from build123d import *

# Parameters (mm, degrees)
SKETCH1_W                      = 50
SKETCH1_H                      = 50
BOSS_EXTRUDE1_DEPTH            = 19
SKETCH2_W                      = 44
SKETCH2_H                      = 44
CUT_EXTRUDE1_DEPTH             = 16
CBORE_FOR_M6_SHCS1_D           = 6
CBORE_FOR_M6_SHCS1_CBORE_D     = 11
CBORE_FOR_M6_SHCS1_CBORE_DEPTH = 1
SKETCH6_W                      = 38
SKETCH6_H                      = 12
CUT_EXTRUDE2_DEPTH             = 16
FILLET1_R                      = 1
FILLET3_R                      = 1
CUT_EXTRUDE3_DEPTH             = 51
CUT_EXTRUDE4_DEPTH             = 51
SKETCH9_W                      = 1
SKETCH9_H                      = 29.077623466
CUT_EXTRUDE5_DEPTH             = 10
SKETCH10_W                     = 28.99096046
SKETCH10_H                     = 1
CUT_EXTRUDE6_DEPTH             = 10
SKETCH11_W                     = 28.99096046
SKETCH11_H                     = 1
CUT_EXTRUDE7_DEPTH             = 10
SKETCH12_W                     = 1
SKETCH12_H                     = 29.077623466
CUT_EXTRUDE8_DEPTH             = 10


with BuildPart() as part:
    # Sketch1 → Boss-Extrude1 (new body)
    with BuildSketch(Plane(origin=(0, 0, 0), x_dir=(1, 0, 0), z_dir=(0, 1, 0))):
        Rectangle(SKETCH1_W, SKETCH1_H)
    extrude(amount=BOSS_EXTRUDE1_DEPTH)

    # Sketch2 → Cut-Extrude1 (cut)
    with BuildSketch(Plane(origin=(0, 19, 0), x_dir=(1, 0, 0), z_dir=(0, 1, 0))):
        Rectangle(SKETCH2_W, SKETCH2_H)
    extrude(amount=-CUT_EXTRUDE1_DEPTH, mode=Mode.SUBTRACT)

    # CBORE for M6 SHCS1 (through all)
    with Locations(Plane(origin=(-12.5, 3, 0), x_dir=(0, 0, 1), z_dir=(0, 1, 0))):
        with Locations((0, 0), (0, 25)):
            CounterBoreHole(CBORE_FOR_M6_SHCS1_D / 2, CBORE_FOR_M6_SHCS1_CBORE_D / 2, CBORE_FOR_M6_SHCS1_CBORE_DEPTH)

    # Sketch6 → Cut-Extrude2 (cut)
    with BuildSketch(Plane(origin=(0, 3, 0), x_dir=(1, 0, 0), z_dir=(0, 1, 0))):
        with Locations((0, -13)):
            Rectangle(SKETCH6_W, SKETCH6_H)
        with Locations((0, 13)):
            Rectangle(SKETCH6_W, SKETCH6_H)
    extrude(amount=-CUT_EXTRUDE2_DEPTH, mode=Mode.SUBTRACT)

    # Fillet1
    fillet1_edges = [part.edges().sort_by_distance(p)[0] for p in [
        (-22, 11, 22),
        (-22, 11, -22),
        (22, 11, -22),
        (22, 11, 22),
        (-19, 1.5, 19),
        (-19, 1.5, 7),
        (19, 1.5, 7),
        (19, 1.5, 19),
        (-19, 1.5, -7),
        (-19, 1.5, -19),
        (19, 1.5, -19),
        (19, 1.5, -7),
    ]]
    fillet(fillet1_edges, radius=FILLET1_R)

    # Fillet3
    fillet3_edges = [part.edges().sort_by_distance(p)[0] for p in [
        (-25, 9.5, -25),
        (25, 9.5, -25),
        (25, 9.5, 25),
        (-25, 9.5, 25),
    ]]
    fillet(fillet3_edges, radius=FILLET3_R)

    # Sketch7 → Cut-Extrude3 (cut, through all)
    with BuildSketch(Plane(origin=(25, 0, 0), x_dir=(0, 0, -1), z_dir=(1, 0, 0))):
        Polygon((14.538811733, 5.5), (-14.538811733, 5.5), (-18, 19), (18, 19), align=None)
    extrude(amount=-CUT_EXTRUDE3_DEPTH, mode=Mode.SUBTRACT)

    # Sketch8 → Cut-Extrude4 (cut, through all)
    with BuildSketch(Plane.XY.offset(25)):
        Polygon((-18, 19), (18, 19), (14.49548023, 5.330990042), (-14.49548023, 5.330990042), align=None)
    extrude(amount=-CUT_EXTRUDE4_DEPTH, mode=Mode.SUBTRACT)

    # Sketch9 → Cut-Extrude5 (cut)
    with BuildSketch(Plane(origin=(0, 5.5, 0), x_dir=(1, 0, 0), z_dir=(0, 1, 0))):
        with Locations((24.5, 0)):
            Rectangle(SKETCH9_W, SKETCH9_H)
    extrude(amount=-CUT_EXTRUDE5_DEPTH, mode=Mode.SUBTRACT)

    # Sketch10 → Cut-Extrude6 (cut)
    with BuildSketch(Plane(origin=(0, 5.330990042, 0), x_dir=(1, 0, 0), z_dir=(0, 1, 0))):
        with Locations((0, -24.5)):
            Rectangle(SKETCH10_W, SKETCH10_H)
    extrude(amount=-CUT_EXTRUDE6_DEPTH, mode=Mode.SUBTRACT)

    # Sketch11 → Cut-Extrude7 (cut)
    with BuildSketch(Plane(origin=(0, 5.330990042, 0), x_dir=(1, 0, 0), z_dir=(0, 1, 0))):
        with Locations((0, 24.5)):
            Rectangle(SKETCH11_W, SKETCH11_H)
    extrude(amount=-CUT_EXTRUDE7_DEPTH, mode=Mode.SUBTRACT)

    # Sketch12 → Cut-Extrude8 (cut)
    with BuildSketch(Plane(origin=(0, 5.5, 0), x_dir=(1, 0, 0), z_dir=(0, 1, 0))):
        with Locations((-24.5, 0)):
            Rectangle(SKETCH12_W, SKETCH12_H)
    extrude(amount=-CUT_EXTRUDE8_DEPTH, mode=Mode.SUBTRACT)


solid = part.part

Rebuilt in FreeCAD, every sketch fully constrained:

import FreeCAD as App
import Part
import Sketcher
Q = App.Units.Quantity


def edges_at(feature, points):
    """Names of the edges that pass closest to the given points."""
    edges = feature.Shape.Edges
    near = lambda p: min(range(len(edges)), key=lambda i: edges[i].distToShape(Part.Vertex(*p))[0])
    return sorted({f"Edge{near(p) + 1}" for p in points})

doc = App.newDocument("Part")
params = doc.addObject("Spreadsheet::Sheet", "Params")
for row, (alias, value) in enumerate([
    ("sketch1_width", "50 mm"),
    ("pad1_length", "19 mm"),
    ("sketch2_width", "44 mm"),
    ("pocket1_length", "16 mm"),
    ("sketch3_diameter", "6 mm"),
    ("hole_diameter", "6 mm"),
    ("hole_cbore_diameter", "11 mm"),
    ("hole_cbore_depth", "1 mm"),
    ("sketch4_width", "38 mm"),
    ("sketch4_height", "12 mm"),
    ("pocket2_length", "16 mm"),
    ("fillet_radius", "1 mm"),
    ("fillet2_radius", "1 mm"),
    ("sketch5_height", "36 mm"),
    ("sketch6_width", "36 mm"),
    ("sketch7_width", "1 mm"),
    ("pocket5_length", "10 mm"),
    ("sketch8_height", "1 mm"),
    ("pocket6_length", "10 mm"),
    ("sketch9_height", "1 mm"),
    ("pocket7_length", "10 mm"),
    ("sketch10_width", "1 mm"),
    ("pocket8_length", "10 mm"),
], start=1):
    params.set(f"A{row}", alias)
    params.set(f"B{row}", "=" + value)
    params.setAlias(f"B{row}", alias)

body = doc.addObject("PartDesign::Body", "Body")

sketch1 = body.newObject("Sketcher::SketchObject", "Sketch")
sketch1.AttachmentSupport = (doc.getObject("XZ_Plane"), [""])
sketch1.MapMode = "FlatFace"
sketch1.addGeometry(Part.LineSegment(App.Vector(-25, -25, 0), App.Vector(-25, 25, 0)), False)
sketch1.addGeometry(Part.LineSegment(App.Vector(-25, 25, 0), App.Vector(25, 25, 0)), False)
sketch1.addGeometry(Part.LineSegment(App.Vector(25, 25, 0), App.Vector(25, -25, 0)), False)
sketch1.addGeometry(Part.LineSegment(App.Vector(25, -25, 0), App.Vector(-25, -25, 0)), False)
sketch1.addConstraint(Sketcher.Constraint("Coincident", 0, 2, 1, 1))
sketch1.addConstraint(Sketcher.Constraint("Coincident", 1, 2, 2, 1))
sketch1.addConstraint(Sketcher.Constraint("Coincident", 2, 2, 3, 1))
sketch1.addConstraint(Sketcher.Constraint("Coincident", 3, 2, 0, 1))
sketch1.addConstraint(Sketcher.Constraint("Vertical", 0))
sketch1.addConstraint(Sketcher.Constraint("Horizontal", 1))
sketch1.addConstraint(Sketcher.Constraint("Vertical", 2))
sketch1.addConstraint(Sketcher.Constraint("Horizontal", 3))
sketch1.addConstraint(Sketcher.Constraint("Symmetric", 0, 2, 2, 2, -1, 1))
sketch1.addConstraint(Sketcher.Constraint("Equal", 3, 0))
sketch1.addConstraint(Sketcher.Constraint("DistanceX", 1, 1, 1, 2, Q("50 mm")))
sketch1.setExpression("Constraints[10]", "Params.sketch1_width")
pad1 = body.newObject("PartDesign::Pad", "Pad")
pad1.Profile = sketch1
pad1.setExpression("Length", "Params.pad1_length")
pad1.Reversed = True

sketch2 = body.newObject("Sketcher::SketchObject", "Sketch001")
sketch2.AttachmentSupport = (doc.getObject("XZ_Plane"), [""])
sketch2.MapMode = "FlatFace"
sketch2.AttachmentOffset = App.Placement(App.Vector(0, 0, -19), App.Rotation())
sketch2.addGeometry(Part.LineSegment(App.Vector(-22, -22, 0), App.Vector(-22, 22, 0)), False)
sketch2.addGeometry(Part.LineSegment(App.Vector(-22, 22, 0), App.Vector(22, 22, 0)), False)
sketch2.addGeometry(Part.LineSegment(App.Vector(22, 22, 0), App.Vector(22, -22, 0)), False)
sketch2.addGeometry(Part.LineSegment(App.Vector(22, -22, 0), App.Vector(-22, -22, 0)), False)
sketch2.addConstraint(Sketcher.Constraint("Coincident", 0, 2, 1, 1))
sketch2.addConstraint(Sketcher.Constraint("Coincident", 1, 2, 2, 1))
sketch2.addConstraint(Sketcher.Constraint("Coincident", 2, 2, 3, 1))
sketch2.addConstraint(Sketcher.Constraint("Coincident", 3, 2, 0, 1))
sketch2.addConstraint(Sketcher.Constraint("Vertical", 0))
sketch2.addConstraint(Sketcher.Constraint("Horizontal", 1))
sketch2.addConstraint(Sketcher.Constraint("Vertical", 2))
sketch2.addConstraint(Sketcher.Constraint("Horizontal", 3))
sketch2.addConstraint(Sketcher.Constraint("Symmetric", 0, 2, 2, 2, -1, 1))
sketch2.addConstraint(Sketcher.Constraint("Equal", 3, 0))
sketch2.addConstraint(Sketcher.Constraint("DistanceX", 1, 1, 1, 2, Q("44 mm")))
sketch2.setExpression("Constraints[10]", "Params.sketch2_width")
pocket1 = body.newObject("PartDesign::Pocket", "Pocket")
pocket1.Profile = sketch2
pocket1.setExpression("Length", "Params.pocket1_length")
pocket1.Reversed = True

sketch3 = body.newObject("Sketcher::SketchObject", "Sketch002")
sketch3.AttachmentSupport = (doc.getObject("XZ_Plane"), [""])
sketch3.MapMode = "FlatFace"
sketch3.AttachmentOffset = App.Placement(App.Vector(0, 0, -3), App.Rotation())
sketch3.addGeometry(Part.Circle(App.Vector(-12.5, 0, 0), App.Vector(0, 0, 1), 3), False)
sketch3.addGeometry(Part.Circle(App.Vector(12.5, 0, 0), App.Vector(0, 0, 1), 3), False)
sketch3.addConstraint(Sketcher.Constraint("Equal", 0, 1))
sketch3.addConstraint(Sketcher.Constraint("Symmetric", 0, 3, 1, 3, -1, 1))
sketch3.addConstraint(Sketcher.Constraint("PointOnObject", 0, 3, -1))
sketch3.addConstraint(Sketcher.Constraint("Diameter", 0, Q("6 mm")))
sketch3.addConstraint(Sketcher.Constraint("DistanceX", 0, 3, 1, 3, Q("25 mm")))
sketch3.setExpression("Constraints[3]", "Params.sketch3_diameter")
doc.recompute()
hole = body.newObject("PartDesign::Hole", "Hole")
hole.Profile = sketch3
hole.ThreadType = "None"
hole.setExpression("Diameter", "Params.hole_diameter")
hole.DepthType = "ThroughAll"
hole.HoleCutType = "Counterbore"
hole.setExpression("HoleCutDiameter", "Params.hole_cbore_diameter")
hole.setExpression("HoleCutDepth", "Params.hole_cbore_depth")
hole.Reversed = True

sketch4 = body.newObject("Sketcher::SketchObject", "Sketch003")
sketch4.AttachmentSupport = (doc.getObject("XZ_Plane"), [""])
sketch4.MapMode = "FlatFace"
sketch4.AttachmentOffset = App.Placement(App.Vector(0, 0, -3), App.Rotation())
sketch4.addGeometry(Part.LineSegment(App.Vector(-19, 7, 0), App.Vector(-19, 19, 0)), False)
sketch4.addGeometry(Part.LineSegment(App.Vector(-19, 19, 0), App.Vector(19, 19, 0)), False)
sketch4.addGeometry(Part.LineSegment(App.Vector(19, 19, 0), App.Vector(19, 7, 0)), False)
sketch4.addGeometry(Part.LineSegment(App.Vector(19, 7, 0), App.Vector(-19, 7, 0)), False)
sketch4.addGeometry(Part.LineSegment(App.Vector(-19, -19, 0), App.Vector(-19, -7, 0)), False)
sketch4.addGeometry(Part.LineSegment(App.Vector(-19, -7, 0), App.Vector(19, -7, 0)), False)
sketch4.addGeometry(Part.LineSegment(App.Vector(19, -7, 0), App.Vector(19, -19, 0)), False)
sketch4.addGeometry(Part.LineSegment(App.Vector(19, -19, 0), App.Vector(-19, -19, 0)), False)
sketch4.addConstraint(Sketcher.Constraint("Coincident", 0, 2, 1, 1))
sketch4.addConstraint(Sketcher.Constraint("Coincident", 1, 2, 2, 1))
sketch4.addConstraint(Sketcher.Constraint("Coincident", 2, 2, 3, 1))
sketch4.addConstraint(Sketcher.Constraint("Coincident", 3, 2, 0, 1))
sketch4.addConstraint(Sketcher.Constraint("Coincident", 4, 2, 5, 1))
sketch4.addConstraint(Sketcher.Constraint("Coincident", 5, 2, 6, 1))
sketch4.addConstraint(Sketcher.Constraint("Coincident", 6, 2, 7, 1))
sketch4.addConstraint(Sketcher.Constraint("Coincident", 7, 2, 4, 1))
sketch4.addConstraint(Sketcher.Constraint("Vertical", 0))
sketch4.addConstraint(Sketcher.Constraint("Horizontal", 1))
sketch4.addConstraint(Sketcher.Constraint("Vertical", 2))
sketch4.addConstraint(Sketcher.Constraint("Horizontal", 3))
sketch4.addConstraint(Sketcher.Constraint("Vertical", 4))
sketch4.addConstraint(Sketcher.Constraint("Horizontal", 5))
sketch4.addConstraint(Sketcher.Constraint("Vertical", 6))
sketch4.addConstraint(Sketcher.Constraint("Horizontal", 7))
sketch4.addConstraint(Sketcher.Constraint("Symmetric", 2, 2, 4, 2, -1, 1))
sketch4.addConstraint(Sketcher.Constraint("Symmetric", 0, 2, 6, 2, -1, 1))
sketch4.addConstraint(Sketcher.Constraint("Vertical", 3, 2, 4, 2))
sketch4.addConstraint(Sketcher.Constraint("DistanceX", 1, 1, 1, 2, Q("38 mm")))
sketch4.addConstraint(Sketcher.Constraint("DistanceY", 0, 1, 0, 2, Q("12 mm")))
sketch4.addConstraint(Sketcher.Constraint("DistanceY", -1, 1, 0, 2, Q("19 mm")))
sketch4.setExpression("Constraints[19]", "Params.sketch4_width")
sketch4.setExpression("Constraints[20]", "Params.sketch4_height")
pocket2 = body.newObject("PartDesign::Pocket", "Pocket001")
pocket2.Profile = sketch4
pocket2.setExpression("Length", "Params.pocket2_length")
pocket2.Reversed = True
doc.recompute()

fillet = body.newObject("PartDesign::Fillet", "Fillet")
fillet.Base = (pocket2, edges_at(pocket2, [
    (-22, 11, 22),
    (-22, 11, -22),
    (22, 11, -22),
    (22, 11, 22),
    (-19, 1.5, 19),
    (-19, 1.5, 7),
    (19, 1.5, 7),
    (19, 1.5, 19),
    (-19, 1.5, -7),
    (-19, 1.5, -19),
    (19, 1.5, -19),
    (19, 1.5, -7),
]))
fillet.setExpression("Radius", "Params.fillet_radius")
doc.recompute()

fillet2 = body.newObject("PartDesign::Fillet", "Fillet001")
fillet2.Base = (fillet, edges_at(fillet, [
    (-25, 9.5, -25),
    (25, 9.5, -25),
    (25, 9.5, 25),
    (-25, 9.5, 25),
]))
fillet2.setExpression("Radius", "Params.fillet2_radius")

sketch5 = body.newObject("Sketcher::SketchObject", "Sketch004")
sketch5.AttachmentSupport = (doc.getObject("YZ_Plane"), [""])
sketch5.MapMode = "FlatFace"
sketch5.AttachmentOffset = App.Placement(App.Vector(0, 0, 25), App.Rotation())
sketch5.addGeometry(Part.LineSegment(App.Vector(5.5, 14.538812, 0), App.Vector(5.5, -14.538812, 0)), False)
sketch5.addGeometry(Part.LineSegment(App.Vector(5.5, -14.538812, 0), App.Vector(19, -18, 0)), False)
sketch5.addGeometry(Part.LineSegment(App.Vector(19, -18, 0), App.Vector(19, 18, 0)), False)
sketch5.addGeometry(Part.LineSegment(App.Vector(19, 18, 0), App.Vector(5.5, 14.538812, 0)), False)
sketch5.addConstraint(Sketcher.Constraint("Coincident", 0, 2, 1, 1))
sketch5.addConstraint(Sketcher.Constraint("Coincident", 1, 2, 2, 1))
sketch5.addConstraint(Sketcher.Constraint("Coincident", 2, 2, 3, 1))
sketch5.addConstraint(Sketcher.Constraint("Coincident", 3, 2, 0, 1))
sketch5.addConstraint(Sketcher.Constraint("Vertical", 0))
sketch5.addConstraint(Sketcher.Constraint("Vertical", 2))
sketch5.addConstraint(Sketcher.Constraint("Equal", 1, 3))
sketch5.addConstraint(Sketcher.Constraint("DistanceY", 2, 1, 2, 2, Q("36 mm")))
sketch5.addConstraint(Sketcher.Constraint("DistanceX", -1, 1, 1, 2, Q("19 mm")))
sketch5.addConstraint(Sketcher.Constraint("DistanceY", 1, 2, -1, 1, Q("18 mm")))
sketch5.addConstraint(Sketcher.Constraint("DistanceX", -1, 1, 0, 2, Q("5.5 mm")))
sketch5.addConstraint(Sketcher.Constraint("Angle", 1, Q("-14.38 deg")))
sketch5.setExpression("Constraints[7]", "Params.sketch5_height")
pocket3 = body.newObject("PartDesign::Pocket", "Pocket002")
pocket3.Profile = sketch5
pocket3.Type = "ThroughAll"

sketch6 = body.newObject("Sketcher::SketchObject", "Sketch005")
sketch6.AttachmentSupport = (doc.getObject("XY_Plane"), [""])
sketch6.MapMode = "FlatFace"
sketch6.AttachmentOffset = App.Placement(App.Vector(0, 0, 25), App.Rotation())
sketch6.addGeometry(Part.LineSegment(App.Vector(18, 19, 0), App.Vector(-18, 19, 0)), False)
sketch6.addGeometry(Part.LineSegment(App.Vector(-18, 19, 0), App.Vector(-14.49548, 5.33099, 0)), False)
sketch6.addGeometry(Part.LineSegment(App.Vector(-14.49548, 5.33099, 0), App.Vector(14.49548, 5.33099, 0)), False)
sketch6.addGeometry(Part.LineSegment(App.Vector(14.49548, 5.33099, 0), App.Vector(18, 19, 0)), False)
sketch6.addConstraint(Sketcher.Constraint("Coincident", 0, 2, 1, 1))
sketch6.addConstraint(Sketcher.Constraint("Coincident", 1, 2, 2, 1))
sketch6.addConstraint(Sketcher.Constraint("Coincident", 2, 2, 3, 1))
sketch6.addConstraint(Sketcher.Constraint("Coincident", 3, 2, 0, 1))
sketch6.addConstraint(Sketcher.Constraint("Horizontal", 0))
sketch6.addConstraint(Sketcher.Constraint("Horizontal", 2))
sketch6.addConstraint(Sketcher.Constraint("Equal", 1, 3))
sketch6.addConstraint(Sketcher.Constraint("DistanceX", 0, 2, 0, 1, Q("36 mm")))
sketch6.addConstraint(Sketcher.Constraint("DistanceX", 0, 2, -1, 1, Q("18 mm")))
sketch6.addConstraint(Sketcher.Constraint("DistanceY", -1, 1, 0, 2, Q("19 mm")))
sketch6.addConstraint(Sketcher.Constraint("Angle", 1, Q("-75.62 deg")))
sketch6.addConstraint(Sketcher.Constraint("DistanceX", 2, 1, 2, 2, Q("28.99096 mm")))
sketch6.setExpression("Constraints[7]", "Params.sketch6_width")
pocket4 = body.newObject("PartDesign::Pocket", "Pocket003")
pocket4.Profile = sketch6
pocket4.Type = "ThroughAll"

sketch7 = body.newObject("Sketcher::SketchObject", "Sketch006")
sketch7.AttachmentSupport = (doc.getObject("XZ_Plane"), [""])
sketch7.MapMode = "FlatFace"
sketch7.AttachmentOffset = App.Placement(App.Vector(0, 0, -5.5), App.Rotation())
sketch7.addGeometry(Part.LineSegment(App.Vector(24, -14.538812, 0), App.Vector(24, 14.538812, 0)), False)
sketch7.addGeometry(Part.LineSegment(App.Vector(24, 14.538812, 0), App.Vector(25, 14.538812, 0)), False)
sketch7.addGeometry(Part.LineSegment(App.Vector(25, 14.538812, 0), App.Vector(25, -14.538812, 0)), False)
sketch7.addGeometry(Part.LineSegment(App.Vector(25, -14.538812, 0), App.Vector(24, -14.538812, 0)), False)
sketch7.addConstraint(Sketcher.Constraint("Coincident", 0, 2, 1, 1))
sketch7.addConstraint(Sketcher.Constraint("Coincident", 1, 2, 2, 1))
sketch7.addConstraint(Sketcher.Constraint("Coincident", 2, 2, 3, 1))
sketch7.addConstraint(Sketcher.Constraint("Coincident", 3, 2, 0, 1))
sketch7.addConstraint(Sketcher.Constraint("Vertical", 0))
sketch7.addConstraint(Sketcher.Constraint("Horizontal", 1))
sketch7.addConstraint(Sketcher.Constraint("Vertical", 2))
sketch7.addConstraint(Sketcher.Constraint("Horizontal", 3))
sketch7.addConstraint(Sketcher.Constraint("DistanceX", 1, 1, 1, 2, Q("1 mm")))
sketch7.addConstraint(Sketcher.Constraint("DistanceX", -1, 1, 0, 2, Q("24 mm")))
sketch7.addConstraint(Sketcher.Constraint("DistanceY", 0, 1, 0, 2, Q("29.077623 mm")))
sketch7.addConstraint(Sketcher.Constraint("DistanceY", -1, 1, 0, 2, Q("14.538812 mm")))
sketch7.setExpression("Constraints[8]", "Params.sketch7_width")
pocket5 = body.newObject("PartDesign::Pocket", "Pocket004")
pocket5.Profile = sketch7
pocket5.setExpression("Length", "Params.pocket5_length")
pocket5.Reversed = True

sketch8 = body.newObject("Sketcher::SketchObject", "Sketch007")
sketch8.AttachmentSupport = (doc.getObject("XZ_Plane"), [""])
sketch8.MapMode = "FlatFace"
sketch8.AttachmentOffset = App.Placement(App.Vector(0, 0, -5.33099), App.Rotation())
sketch8.addGeometry(Part.LineSegment(App.Vector(-14.49548, 24, 0), App.Vector(-14.49548, 25, 0)), False)
sketch8.addGeometry(Part.LineSegment(App.Vector(-14.49548, 25, 0), App.Vector(14.49548, 25, 0)), False)
sketch8.addGeometry(Part.LineSegment(App.Vector(14.49548, 25, 0), App.Vector(14.49548, 24, 0)), False)
sketch8.addGeometry(Part.LineSegment(App.Vector(14.49548, 24, 0), App.Vector(-14.49548, 24, 0)), False)
sketch8.addConstraint(Sketcher.Constraint("Coincident", 0, 2, 1, 1))
sketch8.addConstraint(Sketcher.Constraint("Coincident", 1, 2, 2, 1))
sketch8.addConstraint(Sketcher.Constraint("Coincident", 2, 2, 3, 1))
sketch8.addConstraint(Sketcher.Constraint("Coincident", 3, 2, 0, 1))
sketch8.addConstraint(Sketcher.Constraint("Vertical", 0))
sketch8.addConstraint(Sketcher.Constraint("Horizontal", 1))
sketch8.addConstraint(Sketcher.Constraint("Vertical", 2))
sketch8.addConstraint(Sketcher.Constraint("Horizontal", 3))
sketch8.addConstraint(Sketcher.Constraint("DistanceY", 0, 1, 0, 2, Q("1 mm")))
sketch8.addConstraint(Sketcher.Constraint("DistanceY", -1, 1, 0, 2, Q("25 mm")))
sketch8.addConstraint(Sketcher.Constraint("DistanceX", 1, 1, 1, 2, Q("28.99096 mm")))
sketch8.addConstraint(Sketcher.Constraint("DistanceX", 0, 2, -1, 1, Q("14.49548 mm")))
sketch8.setExpression("Constraints[8]", "Params.sketch8_height")
pocket6 = body.newObject("PartDesign::Pocket", "Pocket005")
pocket6.Profile = sketch8
pocket6.setExpression("Length", "Params.pocket6_length")
pocket6.Reversed = True

sketch9 = body.newObject("Sketcher::SketchObject", "Sketch008")
sketch9.AttachmentSupport = (doc.getObject("XZ_Plane"), [""])
sketch9.MapMode = "FlatFace"
sketch9.AttachmentOffset = App.Placement(App.Vector(0, 0, -5.33099), App.Rotation())
sketch9.addGeometry(Part.LineSegment(App.Vector(-14.49548, -25, 0), App.Vector(-14.49548, -24, 0)), False)
sketch9.addGeometry(Part.LineSegment(App.Vector(-14.49548, -24, 0), App.Vector(14.49548, -24, 0)), False)
sketch9.addGeometry(Part.LineSegment(App.Vector(14.49548, -24, 0), App.Vector(14.49548, -25, 0)), False)
sketch9.addGeometry(Part.LineSegment(App.Vector(14.49548, -25, 0), App.Vector(-14.49548, -25, 0)), False)
sketch9.addConstraint(Sketcher.Constraint("Coincident", 0, 2, 1, 1))
sketch9.addConstraint(Sketcher.Constraint("Coincident", 1, 2, 2, 1))
sketch9.addConstraint(Sketcher.Constraint("Coincident", 2, 2, 3, 1))
sketch9.addConstraint(Sketcher.Constraint("Coincident", 3, 2, 0, 1))
sketch9.addConstraint(Sketcher.Constraint("Vertical", 0))
sketch9.addConstraint(Sketcher.Constraint("Horizontal", 1))
sketch9.addConstraint(Sketcher.Constraint("Vertical", 2))
sketch9.addConstraint(Sketcher.Constraint("Horizontal", 3))
sketch9.addConstraint(Sketcher.Constraint("DistanceY", 0, 1, 0, 2, Q("1 mm")))
sketch9.addConstraint(Sketcher.Constraint("DistanceY", 0, 2, -1, 1, Q("24 mm")))
sketch9.addConstraint(Sketcher.Constraint("DistanceX", 1, 1, 1, 2, Q("28.99096 mm")))
sketch9.addConstraint(Sketcher.Constraint("DistanceX", 0, 2, -1, 1, Q("14.49548 mm")))
sketch9.setExpression("Constraints[8]", "Params.sketch9_height")
pocket7 = body.newObject("PartDesign::Pocket", "Pocket006")
pocket7.Profile = sketch9
pocket7.setExpression("Length", "Params.pocket7_length")
pocket7.Reversed = True

sketch10 = body.newObject("Sketcher::SketchObject", "Sketch009")
sketch10.AttachmentSupport = (doc.getObject("XZ_Plane"), [""])
sketch10.MapMode = "FlatFace"
sketch10.AttachmentOffset = App.Placement(App.Vector(0, 0, -5.5), App.Rotation())
sketch10.addGeometry(Part.LineSegment(App.Vector(-25, -14.538812, 0), App.Vector(-25, 14.538812, 0)), False)
sketch10.addGeometry(Part.LineSegment(App.Vector(-25, 14.538812, 0), App.Vector(-24, 14.538812, 0)), False)
sketch10.addGeometry(Part.LineSegment(App.Vector(-24, 14.538812, 0), App.Vector(-24, -14.538812, 0)), False)
sketch10.addGeometry(Part.LineSegment(App.Vector(-24, -14.538812, 0), App.Vector(-25, -14.538812, 0)), False)
sketch10.addConstraint(Sketcher.Constraint("Coincident", 0, 2, 1, 1))
sketch10.addConstraint(Sketcher.Constraint("Coincident", 1, 2, 2, 1))
sketch10.addConstraint(Sketcher.Constraint("Coincident", 2, 2, 3, 1))
sketch10.addConstraint(Sketcher.Constraint("Coincident", 3, 2, 0, 1))
sketch10.addConstraint(Sketcher.Constraint("Vertical", 0))
sketch10.addConstraint(Sketcher.Constraint("Horizontal", 1))
sketch10.addConstraint(Sketcher.Constraint("Vertical", 2))
sketch10.addConstraint(Sketcher.Constraint("Horizontal", 3))
sketch10.addConstraint(Sketcher.Constraint("DistanceX", 1, 1, 1, 2, Q("1 mm")))
sketch10.addConstraint(Sketcher.Constraint("DistanceX", 0, 2, -1, 1, Q("25 mm")))
sketch10.addConstraint(Sketcher.Constraint("DistanceY", 0, 1, 0, 2, Q("29.077623 mm")))
sketch10.addConstraint(Sketcher.Constraint("DistanceY", -1, 1, 0, 2, Q("14.538812 mm")))
sketch10.setExpression("Constraints[8]", "Params.sketch10_width")
pocket8 = body.newObject("PartDesign::Pocket", "Pocket007")
pocket8.Profile = sketch10
pocket8.setExpression("Length", "Params.pocket8_length")
pocket8.Reversed = True

doc.recompute()
